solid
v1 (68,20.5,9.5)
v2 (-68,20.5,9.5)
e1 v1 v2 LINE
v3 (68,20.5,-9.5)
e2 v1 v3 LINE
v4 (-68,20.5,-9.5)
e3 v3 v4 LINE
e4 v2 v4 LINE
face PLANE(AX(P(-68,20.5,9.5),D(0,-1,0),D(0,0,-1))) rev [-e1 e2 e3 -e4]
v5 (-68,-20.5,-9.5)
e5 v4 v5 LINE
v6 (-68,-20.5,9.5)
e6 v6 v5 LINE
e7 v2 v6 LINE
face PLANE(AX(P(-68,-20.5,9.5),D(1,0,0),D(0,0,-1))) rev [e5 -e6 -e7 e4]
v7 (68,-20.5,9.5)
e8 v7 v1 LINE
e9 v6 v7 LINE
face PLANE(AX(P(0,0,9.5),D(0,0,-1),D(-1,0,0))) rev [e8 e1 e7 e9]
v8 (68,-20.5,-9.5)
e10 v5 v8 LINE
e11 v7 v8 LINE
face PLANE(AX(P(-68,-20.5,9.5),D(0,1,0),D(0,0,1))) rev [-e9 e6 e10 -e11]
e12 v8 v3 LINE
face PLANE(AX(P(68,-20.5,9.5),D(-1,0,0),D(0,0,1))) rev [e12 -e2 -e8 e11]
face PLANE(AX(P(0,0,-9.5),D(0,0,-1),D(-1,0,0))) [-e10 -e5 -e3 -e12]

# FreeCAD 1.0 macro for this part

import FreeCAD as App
import Part
import Sketcher
from FreeCAD import Vector

doc = App.newDocument("Part")
body = doc.addObject("PartDesign::Body", "Body")

# Sketch on XY plane
sketch1 = body.newObject("Sketcher::SketchObject", "Sketch")
sketch1.AttachmentSupport = (doc.getObject("XY_Plane"), [""])
sketch1.MapMode = "FlatFace"
sketch1.addGeometry(Part.LineSegment(Vector(-68, 20, 0), Vector(-68, -20, 0)), False)
sketch1.addGeometry(Part.LineSegment(Vector(-68, -20, 0), Vector(68, -20, 0)), False)
sketch1.addGeometry(Part.LineSegment(Vector(68, -20, 0), Vector(68, 20, 0)), False)
sketch1.addGeometry(Part.LineSegment(Vector(68, 20, 0), Vector(-68, 20, 0)), False)
sketch1.addConstraint(Sketcher.Constraint("Coincident", 0, 2, 1, 1))
sketch1.addConstraint(Sketcher.Constraint("Coincident", 1, 2, 2, 1))
sketch1.addConstraint(Sketcher.Constraint("Coincident", 2, 2, 3, 1))
sketch1.addConstraint(Sketcher.Constraint("Coincident", 3, 2, 0, 1))
sketch1.addConstraint(Sketcher.Constraint("Vertical", 0))
sketch1.addConstraint(Sketcher.Constraint("Horizontal", 1))
sketch1.addConstraint(Sketcher.Constraint("Vertical", 2))
sketch1.addConstraint(Sketcher.Constraint("Horizontal", 3))
sketch1.addConstraint(Sketcher.Constraint("Symmetric", 0, 2, 2, 2, -1, 1))
sketch1.addConstraint(Sketcher.Constraint("DistanceX", 1, 1, 1, 2, 136.0))
sketch1.addConstraint(Sketcher.Constraint("DistanceY", 0, 2, 0, 1, 41.0))
pad1 = body.newObject("PartDesign::Pad", "Pad")
pad1.Profile = sketch1
pad1.Length = 19
pad1.Midplane = True

doc.recompute()
